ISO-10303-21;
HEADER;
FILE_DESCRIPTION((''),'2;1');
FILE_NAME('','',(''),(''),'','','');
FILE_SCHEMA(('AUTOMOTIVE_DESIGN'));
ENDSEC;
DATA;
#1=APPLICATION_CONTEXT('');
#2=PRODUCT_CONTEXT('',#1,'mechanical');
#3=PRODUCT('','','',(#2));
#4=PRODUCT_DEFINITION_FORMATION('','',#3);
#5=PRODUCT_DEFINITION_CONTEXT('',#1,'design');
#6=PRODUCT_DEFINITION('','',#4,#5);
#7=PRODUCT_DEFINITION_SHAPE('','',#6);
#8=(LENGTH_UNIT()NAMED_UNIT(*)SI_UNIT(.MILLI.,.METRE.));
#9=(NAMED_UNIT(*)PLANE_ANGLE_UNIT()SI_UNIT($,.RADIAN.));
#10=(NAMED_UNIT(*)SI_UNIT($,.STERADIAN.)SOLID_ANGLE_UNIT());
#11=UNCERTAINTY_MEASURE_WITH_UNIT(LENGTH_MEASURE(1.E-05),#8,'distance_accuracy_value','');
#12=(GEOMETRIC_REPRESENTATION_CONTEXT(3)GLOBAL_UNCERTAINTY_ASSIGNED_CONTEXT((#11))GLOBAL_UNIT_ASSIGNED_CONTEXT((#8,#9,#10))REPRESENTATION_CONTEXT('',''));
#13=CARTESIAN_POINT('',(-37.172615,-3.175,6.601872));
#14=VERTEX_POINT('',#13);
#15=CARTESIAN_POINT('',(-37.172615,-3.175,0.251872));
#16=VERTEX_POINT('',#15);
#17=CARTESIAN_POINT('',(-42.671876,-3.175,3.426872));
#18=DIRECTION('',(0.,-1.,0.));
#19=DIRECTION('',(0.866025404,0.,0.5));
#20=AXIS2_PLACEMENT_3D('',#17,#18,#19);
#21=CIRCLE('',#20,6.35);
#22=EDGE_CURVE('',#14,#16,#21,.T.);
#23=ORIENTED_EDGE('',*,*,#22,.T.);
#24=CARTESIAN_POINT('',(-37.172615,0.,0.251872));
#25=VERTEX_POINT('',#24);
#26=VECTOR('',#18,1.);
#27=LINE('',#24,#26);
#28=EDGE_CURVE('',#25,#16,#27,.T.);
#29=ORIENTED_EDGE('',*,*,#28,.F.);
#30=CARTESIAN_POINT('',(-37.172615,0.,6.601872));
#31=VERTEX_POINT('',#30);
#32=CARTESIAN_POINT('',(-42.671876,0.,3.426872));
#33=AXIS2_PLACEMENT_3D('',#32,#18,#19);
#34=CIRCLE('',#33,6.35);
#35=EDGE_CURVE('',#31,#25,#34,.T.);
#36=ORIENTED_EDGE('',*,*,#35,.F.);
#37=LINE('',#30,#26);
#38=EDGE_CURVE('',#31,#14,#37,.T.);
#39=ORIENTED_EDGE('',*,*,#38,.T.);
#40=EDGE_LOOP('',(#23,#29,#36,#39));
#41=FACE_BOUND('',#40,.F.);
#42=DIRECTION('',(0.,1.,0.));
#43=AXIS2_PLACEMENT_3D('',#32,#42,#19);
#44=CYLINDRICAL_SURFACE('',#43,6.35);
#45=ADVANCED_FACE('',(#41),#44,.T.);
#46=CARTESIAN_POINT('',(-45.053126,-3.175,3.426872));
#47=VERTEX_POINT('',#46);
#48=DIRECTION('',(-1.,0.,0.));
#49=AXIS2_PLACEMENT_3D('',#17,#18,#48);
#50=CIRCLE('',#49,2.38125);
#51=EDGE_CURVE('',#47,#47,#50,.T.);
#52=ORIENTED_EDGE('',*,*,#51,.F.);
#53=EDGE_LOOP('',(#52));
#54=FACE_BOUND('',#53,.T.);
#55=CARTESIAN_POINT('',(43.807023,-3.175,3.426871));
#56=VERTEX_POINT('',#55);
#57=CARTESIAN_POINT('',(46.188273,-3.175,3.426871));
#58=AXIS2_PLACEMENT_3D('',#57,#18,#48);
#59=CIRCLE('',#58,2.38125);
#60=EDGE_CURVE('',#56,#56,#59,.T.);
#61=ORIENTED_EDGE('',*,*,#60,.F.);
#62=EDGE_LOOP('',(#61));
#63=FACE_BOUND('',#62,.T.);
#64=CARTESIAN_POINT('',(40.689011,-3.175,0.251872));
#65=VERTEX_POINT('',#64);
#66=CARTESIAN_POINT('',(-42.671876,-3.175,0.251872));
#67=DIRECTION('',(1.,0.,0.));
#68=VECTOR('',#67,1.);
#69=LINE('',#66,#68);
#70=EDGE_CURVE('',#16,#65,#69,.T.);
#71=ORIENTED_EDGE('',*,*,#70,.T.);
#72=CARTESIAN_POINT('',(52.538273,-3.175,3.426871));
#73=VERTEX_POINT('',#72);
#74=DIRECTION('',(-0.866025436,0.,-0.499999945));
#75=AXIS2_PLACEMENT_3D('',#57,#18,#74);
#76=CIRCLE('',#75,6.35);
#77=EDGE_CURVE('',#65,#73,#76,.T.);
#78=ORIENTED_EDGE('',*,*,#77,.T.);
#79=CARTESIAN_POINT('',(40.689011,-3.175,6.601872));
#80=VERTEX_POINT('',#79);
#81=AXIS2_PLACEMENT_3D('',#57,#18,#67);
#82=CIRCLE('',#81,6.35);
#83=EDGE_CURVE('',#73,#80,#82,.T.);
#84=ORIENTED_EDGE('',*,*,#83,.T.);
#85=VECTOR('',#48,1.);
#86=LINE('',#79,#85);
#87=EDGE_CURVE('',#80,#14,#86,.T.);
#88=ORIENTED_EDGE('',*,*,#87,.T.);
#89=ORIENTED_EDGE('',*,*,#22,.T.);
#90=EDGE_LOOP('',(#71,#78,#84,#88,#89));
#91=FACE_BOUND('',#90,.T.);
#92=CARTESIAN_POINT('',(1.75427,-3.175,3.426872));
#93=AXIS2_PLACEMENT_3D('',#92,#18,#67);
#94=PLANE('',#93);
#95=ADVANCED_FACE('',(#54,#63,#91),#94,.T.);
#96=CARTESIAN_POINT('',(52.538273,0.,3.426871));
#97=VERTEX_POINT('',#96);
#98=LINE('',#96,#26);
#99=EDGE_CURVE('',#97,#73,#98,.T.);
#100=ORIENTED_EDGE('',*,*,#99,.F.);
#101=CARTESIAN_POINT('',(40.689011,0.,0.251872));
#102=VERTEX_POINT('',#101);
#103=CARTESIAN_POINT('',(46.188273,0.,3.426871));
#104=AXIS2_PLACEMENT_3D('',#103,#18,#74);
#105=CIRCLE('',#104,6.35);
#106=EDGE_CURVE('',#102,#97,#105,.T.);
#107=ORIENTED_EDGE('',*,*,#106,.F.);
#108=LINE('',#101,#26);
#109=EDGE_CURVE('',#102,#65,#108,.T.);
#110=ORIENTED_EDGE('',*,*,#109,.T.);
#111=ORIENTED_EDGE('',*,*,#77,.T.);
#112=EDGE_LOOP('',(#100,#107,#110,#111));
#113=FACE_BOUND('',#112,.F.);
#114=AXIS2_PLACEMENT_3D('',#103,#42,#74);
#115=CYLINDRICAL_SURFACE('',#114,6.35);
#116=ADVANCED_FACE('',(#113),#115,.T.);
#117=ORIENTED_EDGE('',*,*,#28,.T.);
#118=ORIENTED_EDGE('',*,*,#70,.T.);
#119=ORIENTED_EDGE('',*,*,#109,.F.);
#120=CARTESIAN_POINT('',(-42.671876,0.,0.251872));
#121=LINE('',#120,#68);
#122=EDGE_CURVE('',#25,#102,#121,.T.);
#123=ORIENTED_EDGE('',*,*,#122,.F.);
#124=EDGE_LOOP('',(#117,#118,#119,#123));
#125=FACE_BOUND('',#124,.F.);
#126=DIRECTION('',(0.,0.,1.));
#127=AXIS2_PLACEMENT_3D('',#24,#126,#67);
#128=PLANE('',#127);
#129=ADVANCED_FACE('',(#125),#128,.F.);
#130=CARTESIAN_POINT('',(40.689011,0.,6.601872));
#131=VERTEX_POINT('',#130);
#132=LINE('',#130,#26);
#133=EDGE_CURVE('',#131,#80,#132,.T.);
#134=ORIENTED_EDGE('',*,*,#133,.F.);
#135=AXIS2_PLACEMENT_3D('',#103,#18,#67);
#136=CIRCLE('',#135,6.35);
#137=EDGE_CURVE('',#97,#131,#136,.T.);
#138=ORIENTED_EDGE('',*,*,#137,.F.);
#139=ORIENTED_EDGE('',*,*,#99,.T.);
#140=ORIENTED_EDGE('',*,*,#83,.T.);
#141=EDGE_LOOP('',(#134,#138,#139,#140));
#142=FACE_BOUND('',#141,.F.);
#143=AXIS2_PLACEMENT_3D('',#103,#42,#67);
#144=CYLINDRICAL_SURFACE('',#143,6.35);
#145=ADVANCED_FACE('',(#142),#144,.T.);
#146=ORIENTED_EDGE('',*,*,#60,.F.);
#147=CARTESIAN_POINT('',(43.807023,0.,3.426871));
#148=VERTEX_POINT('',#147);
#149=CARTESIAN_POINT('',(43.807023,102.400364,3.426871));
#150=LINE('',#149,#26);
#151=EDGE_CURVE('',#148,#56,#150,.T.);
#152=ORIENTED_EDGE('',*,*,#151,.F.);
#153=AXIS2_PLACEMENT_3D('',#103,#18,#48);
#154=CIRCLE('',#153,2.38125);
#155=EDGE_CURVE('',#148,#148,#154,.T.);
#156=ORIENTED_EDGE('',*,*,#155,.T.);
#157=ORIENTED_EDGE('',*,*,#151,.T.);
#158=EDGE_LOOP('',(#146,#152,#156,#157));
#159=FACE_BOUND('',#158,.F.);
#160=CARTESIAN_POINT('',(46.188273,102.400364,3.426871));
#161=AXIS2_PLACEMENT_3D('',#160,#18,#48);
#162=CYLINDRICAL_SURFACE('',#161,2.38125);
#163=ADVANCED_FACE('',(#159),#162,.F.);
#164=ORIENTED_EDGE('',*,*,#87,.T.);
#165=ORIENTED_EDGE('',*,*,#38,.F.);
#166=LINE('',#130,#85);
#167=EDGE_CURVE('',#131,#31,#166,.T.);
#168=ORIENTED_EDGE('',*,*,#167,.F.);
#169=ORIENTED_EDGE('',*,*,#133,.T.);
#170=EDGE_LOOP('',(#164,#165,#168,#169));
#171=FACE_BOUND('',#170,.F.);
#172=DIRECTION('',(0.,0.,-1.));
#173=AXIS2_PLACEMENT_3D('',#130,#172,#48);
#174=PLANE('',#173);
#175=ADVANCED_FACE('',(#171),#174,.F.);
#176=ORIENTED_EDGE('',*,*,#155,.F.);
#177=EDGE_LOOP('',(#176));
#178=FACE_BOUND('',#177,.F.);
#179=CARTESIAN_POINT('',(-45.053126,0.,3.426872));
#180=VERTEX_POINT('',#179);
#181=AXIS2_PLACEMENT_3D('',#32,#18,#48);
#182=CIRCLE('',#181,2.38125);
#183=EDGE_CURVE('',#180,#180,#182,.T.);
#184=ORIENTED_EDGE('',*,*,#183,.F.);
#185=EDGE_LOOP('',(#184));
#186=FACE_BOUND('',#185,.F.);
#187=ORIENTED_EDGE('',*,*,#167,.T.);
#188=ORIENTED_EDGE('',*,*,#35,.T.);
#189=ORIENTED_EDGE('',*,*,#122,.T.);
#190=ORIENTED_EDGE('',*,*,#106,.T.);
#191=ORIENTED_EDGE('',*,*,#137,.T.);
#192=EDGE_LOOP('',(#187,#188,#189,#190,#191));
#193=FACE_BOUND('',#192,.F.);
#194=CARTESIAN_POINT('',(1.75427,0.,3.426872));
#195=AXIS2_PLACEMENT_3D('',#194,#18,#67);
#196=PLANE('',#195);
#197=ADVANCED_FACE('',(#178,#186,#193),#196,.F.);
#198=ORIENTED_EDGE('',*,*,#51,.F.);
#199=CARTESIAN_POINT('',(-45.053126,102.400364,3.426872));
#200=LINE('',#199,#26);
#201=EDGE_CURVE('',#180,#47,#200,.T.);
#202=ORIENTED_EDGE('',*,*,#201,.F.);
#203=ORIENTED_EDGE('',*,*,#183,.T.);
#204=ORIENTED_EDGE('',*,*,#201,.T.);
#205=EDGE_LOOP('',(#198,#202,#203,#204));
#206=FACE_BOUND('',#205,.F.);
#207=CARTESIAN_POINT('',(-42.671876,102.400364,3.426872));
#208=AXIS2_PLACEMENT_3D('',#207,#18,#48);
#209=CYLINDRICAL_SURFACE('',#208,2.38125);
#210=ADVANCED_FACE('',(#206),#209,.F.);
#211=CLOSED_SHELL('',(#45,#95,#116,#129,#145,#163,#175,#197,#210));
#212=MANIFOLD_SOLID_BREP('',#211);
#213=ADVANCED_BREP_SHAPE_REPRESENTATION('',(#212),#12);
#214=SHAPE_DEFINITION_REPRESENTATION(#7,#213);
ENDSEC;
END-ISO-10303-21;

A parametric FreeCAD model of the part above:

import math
import FreeCAD as App
import Part
import Sketcher

V = App.Vector
Q = App.Units.Quantity

doc = App.newDocument("Part")
body = doc.addObject("PartDesign::Body", "Body")

sketch1 = doc.addObject("Sketcher::SketchObject", "Sketch")
body.addObject(sketch1)
sketch1.AttachmentSupport = (doc.XZ_Plane, [""])
sketch1.MapMode = "FlatFace"
sketch1.addGeometry([
    Part.LineSegment(V(41, 7, 0), V(-37, 7, 0)),
    Part.ArcOfCircle(Part.Circle(V(-43, 3, 0), V(0, 0, 1), 6), math.radians(30), math.radians(330)),
    Part.LineSegment(V(-37, 0, 0), V(41, 0, 0)),
    Part.ArcOfCircle(Part.Circle(V(46, 3, 0), V(0, 0, 1), 6), math.radians(-150), math.radians(0)),
    Part.ArcOfCircle(Part.Circle(V(46, 3, 0), V(0, 0, 1), 6), math.radians(0), math.radians(150)),
], False)
sketch1.addConstraint([
    Sketcher.Constraint("Coincident", 0, 2, 1, 1),
    Sketcher.Constraint("Coincident", 1, 2, 2, 1),
    Sketcher.Constraint("Coincident", 2, 2, 3, 1),
    Sketcher.Constraint("Tangent", 3, 2, 4, 1),
    Sketcher.Constraint("Coincident", 4, 2, 0, 1),
    Sketcher.Constraint("Horizontal", 0),
    Sketcher.Constraint("Horizontal", 2),
    Sketcher.Constraint("Equal", 1, 3),
    Sketcher.Constraint("Equal", 3, 4),
    Sketcher.Constraint("Horizontal", 1, 3, 3, 3),
    Sketcher.Constraint("Horizontal", 4, 3, 3, 2),
    Sketcher.Constraint("Vertical", 0, 2, 1, 2),
    Sketcher.Constraint("Radius", 1, Q("0.25 in")),
    Sketcher.Constraint("DistanceY", 1, 2, 0, 2, Q("0.25 in")),
    Sketcher.Constraint("DistanceX", 0, 2, 0, 1, Q("77.861627 mm")),
    Sketcher.Constraint("DistanceY", -1, 1, 1, 3, Q("3.426872 mm")),
    Sketcher.Constraint("DistanceX", -1, 1, 2, 2, Q("40.689011 mm")),
])
pad1 = doc.addObject("PartDesign::Pad", "Pad")
body.addObject(pad1)
pad1.Profile = sketch1
pad1.Length = Q("0.125 in")

sketch2 = doc.addObject("Sketcher::SketchObject", "Sketch001")
body.addObject(sketch2)
sketch2.AttachmentSupport = (doc.XZ_Plane, [""])
sketch2.MapMode = "FlatFace"
sketch2.addGeometry(Part.Circle(V(-42.7, 3.4, 0), V(0, 0, 1), 2.4), False)
sketch2.addConstraint([
    Sketcher.Constraint("Diameter", 0, Q("0.1875 in")),
    Sketcher.Constraint("DistanceY", -1, 1, 0, 3, Q("3.426872 mm")),
    Sketcher.Constraint("DistanceX", 0, 3, -1, 1, Q("42.671876 mm")),
])
doc.recompute()
hole = doc.addObject("PartDesign::Hole", "Hole")
body.addObject(hole)
hole.Profile = sketch2
hole.ThreadType = "None"
hole.Diameter = Q("0.1875 in")
hole.DepthType = "ThroughAll"
hole.Reversed = True

sketch3 = doc.addObject("Sketcher::SketchObject", "Sketch002")
body.addObject(sketch3)
sketch3.AttachmentSupport = (doc.XZ_Plane, [""])
sketch3.MapMode = "FlatFace"
sketch3.addGeometry(Part.Circle(V(46.2, 3.4, 0), V(0, 0, 1), 2.4), False)
sketch3.addConstraint([
    Sketcher.Constraint("Diameter", 0, Q("0.1875 in")),
    Sketcher.Constraint("DistanceY", -1, 1, 0, 3, Q("3.426871 mm")),
    Sketcher.Constraint("DistanceX", -1, 1, 0, 3, Q("46.188273 mm")),
])
doc.recompute()
hole2 = doc.addObject("PartDesign::Hole", "Hole001")
body.addObject(hole2)
hole2.Profile = sketch3
hole2.ThreadType = "None"
hole2.Diameter = Q("0.1875 in")
hole2.DepthType = "ThroughAll"
hole2.Reversed = True

doc.recompute()
